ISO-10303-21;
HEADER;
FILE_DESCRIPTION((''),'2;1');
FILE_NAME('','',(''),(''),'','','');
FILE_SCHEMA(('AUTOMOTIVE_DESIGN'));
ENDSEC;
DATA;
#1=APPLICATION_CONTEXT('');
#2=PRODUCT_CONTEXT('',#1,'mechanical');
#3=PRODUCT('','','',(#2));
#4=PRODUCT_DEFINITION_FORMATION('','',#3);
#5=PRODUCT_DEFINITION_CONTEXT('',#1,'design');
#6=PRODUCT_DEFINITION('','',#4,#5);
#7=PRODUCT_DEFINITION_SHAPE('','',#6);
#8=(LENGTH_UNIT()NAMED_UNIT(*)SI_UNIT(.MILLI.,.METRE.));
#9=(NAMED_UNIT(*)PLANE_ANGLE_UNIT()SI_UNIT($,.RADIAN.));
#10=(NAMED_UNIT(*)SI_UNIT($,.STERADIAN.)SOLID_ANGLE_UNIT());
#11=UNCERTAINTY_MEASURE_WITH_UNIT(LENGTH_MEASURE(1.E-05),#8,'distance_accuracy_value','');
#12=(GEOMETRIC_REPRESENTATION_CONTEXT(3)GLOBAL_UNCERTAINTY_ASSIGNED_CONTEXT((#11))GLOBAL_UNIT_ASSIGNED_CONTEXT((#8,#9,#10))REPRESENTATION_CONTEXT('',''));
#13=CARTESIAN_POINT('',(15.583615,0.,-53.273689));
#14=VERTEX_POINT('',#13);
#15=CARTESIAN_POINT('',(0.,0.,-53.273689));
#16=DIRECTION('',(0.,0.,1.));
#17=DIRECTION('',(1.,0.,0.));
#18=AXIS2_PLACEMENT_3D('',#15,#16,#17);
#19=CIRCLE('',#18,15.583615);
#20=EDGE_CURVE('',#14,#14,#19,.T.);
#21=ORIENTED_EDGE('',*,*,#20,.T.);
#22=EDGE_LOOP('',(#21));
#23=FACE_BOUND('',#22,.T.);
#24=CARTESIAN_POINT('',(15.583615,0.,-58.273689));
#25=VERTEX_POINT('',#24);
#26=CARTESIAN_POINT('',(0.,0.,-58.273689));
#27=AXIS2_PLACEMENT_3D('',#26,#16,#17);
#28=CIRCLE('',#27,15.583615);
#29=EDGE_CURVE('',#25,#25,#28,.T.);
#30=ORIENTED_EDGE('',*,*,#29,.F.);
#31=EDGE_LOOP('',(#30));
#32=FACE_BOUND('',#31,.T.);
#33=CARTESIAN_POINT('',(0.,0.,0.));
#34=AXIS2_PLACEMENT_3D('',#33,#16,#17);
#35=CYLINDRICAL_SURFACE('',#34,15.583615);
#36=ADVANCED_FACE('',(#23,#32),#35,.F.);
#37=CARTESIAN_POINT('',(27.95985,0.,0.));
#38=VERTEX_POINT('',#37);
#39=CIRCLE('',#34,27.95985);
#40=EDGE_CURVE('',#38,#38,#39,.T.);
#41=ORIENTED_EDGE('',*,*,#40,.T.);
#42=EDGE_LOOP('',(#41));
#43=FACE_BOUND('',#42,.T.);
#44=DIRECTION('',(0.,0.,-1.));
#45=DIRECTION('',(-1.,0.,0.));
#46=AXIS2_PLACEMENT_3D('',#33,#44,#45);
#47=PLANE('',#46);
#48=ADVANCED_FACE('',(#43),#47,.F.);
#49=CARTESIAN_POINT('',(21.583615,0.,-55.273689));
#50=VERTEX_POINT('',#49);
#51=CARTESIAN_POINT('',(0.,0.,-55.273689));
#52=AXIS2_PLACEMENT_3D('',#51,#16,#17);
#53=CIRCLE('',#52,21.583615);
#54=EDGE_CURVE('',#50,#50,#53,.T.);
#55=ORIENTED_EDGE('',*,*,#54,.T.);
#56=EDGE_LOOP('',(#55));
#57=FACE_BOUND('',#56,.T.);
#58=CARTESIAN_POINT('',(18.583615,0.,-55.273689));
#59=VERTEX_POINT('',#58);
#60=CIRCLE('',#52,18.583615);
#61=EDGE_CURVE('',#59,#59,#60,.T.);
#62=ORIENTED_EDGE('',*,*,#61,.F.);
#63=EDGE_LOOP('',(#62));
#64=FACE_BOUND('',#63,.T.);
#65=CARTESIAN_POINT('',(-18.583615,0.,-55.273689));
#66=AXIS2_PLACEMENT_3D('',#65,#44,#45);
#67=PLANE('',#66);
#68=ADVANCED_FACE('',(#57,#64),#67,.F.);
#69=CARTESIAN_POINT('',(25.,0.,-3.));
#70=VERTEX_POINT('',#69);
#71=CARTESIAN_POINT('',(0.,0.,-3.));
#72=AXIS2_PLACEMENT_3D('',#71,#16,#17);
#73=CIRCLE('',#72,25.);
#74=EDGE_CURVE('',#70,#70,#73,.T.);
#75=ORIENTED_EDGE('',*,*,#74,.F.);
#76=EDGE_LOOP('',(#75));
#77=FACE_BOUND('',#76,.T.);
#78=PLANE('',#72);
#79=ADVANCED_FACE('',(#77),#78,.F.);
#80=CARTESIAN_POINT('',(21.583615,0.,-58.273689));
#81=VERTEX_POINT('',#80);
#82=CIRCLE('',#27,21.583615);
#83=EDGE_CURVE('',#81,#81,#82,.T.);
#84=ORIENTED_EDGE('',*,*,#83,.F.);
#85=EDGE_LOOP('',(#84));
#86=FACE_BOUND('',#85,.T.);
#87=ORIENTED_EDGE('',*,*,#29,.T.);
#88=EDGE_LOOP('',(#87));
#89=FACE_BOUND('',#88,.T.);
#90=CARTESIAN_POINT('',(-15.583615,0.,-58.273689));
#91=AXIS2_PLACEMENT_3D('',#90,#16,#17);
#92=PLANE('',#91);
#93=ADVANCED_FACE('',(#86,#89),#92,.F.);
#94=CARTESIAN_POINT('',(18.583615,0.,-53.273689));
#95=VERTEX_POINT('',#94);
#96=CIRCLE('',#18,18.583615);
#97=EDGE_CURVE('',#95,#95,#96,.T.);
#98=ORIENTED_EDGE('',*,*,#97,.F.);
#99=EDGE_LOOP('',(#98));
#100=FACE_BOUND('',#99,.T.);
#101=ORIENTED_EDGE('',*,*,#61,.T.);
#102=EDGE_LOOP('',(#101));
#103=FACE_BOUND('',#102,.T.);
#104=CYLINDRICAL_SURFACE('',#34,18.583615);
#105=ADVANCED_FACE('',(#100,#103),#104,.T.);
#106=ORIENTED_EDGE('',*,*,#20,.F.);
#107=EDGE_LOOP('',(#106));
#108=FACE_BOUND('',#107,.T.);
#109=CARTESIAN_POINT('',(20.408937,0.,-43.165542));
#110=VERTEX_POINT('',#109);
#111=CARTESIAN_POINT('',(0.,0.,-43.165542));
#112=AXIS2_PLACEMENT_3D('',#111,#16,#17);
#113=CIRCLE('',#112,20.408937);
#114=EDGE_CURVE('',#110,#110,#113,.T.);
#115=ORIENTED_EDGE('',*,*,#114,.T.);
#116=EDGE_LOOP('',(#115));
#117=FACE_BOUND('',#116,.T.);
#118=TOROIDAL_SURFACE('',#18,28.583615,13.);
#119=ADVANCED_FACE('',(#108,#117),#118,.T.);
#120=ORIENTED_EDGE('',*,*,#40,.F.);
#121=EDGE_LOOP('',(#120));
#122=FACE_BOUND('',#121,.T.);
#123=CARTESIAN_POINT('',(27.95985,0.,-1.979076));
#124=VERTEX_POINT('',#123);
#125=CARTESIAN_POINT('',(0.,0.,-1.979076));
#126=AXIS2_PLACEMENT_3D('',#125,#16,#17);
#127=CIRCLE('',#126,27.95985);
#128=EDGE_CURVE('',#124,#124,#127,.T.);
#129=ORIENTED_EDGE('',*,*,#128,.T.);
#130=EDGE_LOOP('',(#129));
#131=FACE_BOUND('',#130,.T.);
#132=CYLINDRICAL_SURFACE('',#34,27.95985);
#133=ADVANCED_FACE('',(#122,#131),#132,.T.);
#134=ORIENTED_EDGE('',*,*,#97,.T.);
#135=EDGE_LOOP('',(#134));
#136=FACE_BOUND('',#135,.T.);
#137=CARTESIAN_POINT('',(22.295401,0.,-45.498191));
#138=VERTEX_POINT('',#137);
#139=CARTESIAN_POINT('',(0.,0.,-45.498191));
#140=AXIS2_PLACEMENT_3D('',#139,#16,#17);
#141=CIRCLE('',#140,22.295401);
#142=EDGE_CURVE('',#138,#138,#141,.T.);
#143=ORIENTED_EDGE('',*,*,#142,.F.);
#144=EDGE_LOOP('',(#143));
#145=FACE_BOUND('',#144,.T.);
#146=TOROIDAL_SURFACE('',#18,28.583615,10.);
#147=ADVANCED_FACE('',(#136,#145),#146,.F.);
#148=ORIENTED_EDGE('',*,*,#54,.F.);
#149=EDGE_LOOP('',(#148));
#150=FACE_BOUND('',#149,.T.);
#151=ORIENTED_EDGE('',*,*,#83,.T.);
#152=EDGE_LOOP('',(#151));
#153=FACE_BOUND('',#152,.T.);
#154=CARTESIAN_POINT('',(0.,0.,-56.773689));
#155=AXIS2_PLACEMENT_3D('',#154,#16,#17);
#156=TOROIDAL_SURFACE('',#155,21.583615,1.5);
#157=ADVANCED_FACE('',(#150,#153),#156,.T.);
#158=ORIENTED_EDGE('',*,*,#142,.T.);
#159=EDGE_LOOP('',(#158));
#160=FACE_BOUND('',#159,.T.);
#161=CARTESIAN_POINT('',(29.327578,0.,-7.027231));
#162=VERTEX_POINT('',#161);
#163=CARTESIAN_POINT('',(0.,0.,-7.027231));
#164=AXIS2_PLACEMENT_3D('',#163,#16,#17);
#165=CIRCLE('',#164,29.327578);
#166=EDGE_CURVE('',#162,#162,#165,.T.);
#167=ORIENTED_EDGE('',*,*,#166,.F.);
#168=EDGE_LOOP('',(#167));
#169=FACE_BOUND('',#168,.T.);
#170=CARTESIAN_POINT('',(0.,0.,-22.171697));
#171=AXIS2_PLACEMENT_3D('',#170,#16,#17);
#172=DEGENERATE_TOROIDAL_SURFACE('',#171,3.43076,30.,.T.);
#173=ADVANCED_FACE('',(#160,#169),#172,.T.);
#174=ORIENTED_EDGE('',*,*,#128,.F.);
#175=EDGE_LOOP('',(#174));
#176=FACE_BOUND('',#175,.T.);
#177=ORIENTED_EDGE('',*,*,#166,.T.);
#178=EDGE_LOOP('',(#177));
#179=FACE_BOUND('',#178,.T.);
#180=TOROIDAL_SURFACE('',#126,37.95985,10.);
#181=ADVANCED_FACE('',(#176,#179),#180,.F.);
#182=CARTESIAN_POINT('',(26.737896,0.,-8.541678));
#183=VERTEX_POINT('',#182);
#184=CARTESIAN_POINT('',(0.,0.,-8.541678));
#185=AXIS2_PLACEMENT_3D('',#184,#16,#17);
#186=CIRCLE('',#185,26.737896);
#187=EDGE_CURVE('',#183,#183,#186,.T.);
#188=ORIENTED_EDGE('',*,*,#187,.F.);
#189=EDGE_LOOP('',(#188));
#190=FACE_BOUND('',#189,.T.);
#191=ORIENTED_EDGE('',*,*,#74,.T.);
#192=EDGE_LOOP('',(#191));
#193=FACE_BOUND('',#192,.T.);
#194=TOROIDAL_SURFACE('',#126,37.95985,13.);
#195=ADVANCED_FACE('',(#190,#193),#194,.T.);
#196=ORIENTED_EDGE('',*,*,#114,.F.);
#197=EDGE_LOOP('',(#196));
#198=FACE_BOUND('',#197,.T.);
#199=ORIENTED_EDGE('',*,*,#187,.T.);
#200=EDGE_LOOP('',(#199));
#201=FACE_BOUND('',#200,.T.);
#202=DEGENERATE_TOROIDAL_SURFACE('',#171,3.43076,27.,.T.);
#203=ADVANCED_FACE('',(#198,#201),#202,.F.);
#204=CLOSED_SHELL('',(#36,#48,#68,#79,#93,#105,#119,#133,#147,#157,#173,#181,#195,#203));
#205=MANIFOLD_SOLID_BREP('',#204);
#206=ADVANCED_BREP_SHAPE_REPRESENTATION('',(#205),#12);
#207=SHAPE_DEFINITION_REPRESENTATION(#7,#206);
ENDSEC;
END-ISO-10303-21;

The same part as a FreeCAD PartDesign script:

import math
import FreeCAD as App
import Part
import Sketcher
from FreeCAD import Vector
Q = App.Units.Quantity

doc = App.newDocument("Part")
body = doc.addObject("PartDesign::Body", "Body")

# Sketch on XZ plane
sketch1 = body.newObject("Sketcher::SketchObject", "Sketch")
sketch1.AttachmentSupport = (doc.getObject("XZ_Plane"), [""])
sketch1.MapMode = "FlatFace"
sketch1.addGeometry([
    Part.LineSegment(Vector(-28, 0, 0), Vector(0, 0, 0)),  # 0
    Part.LineSegment(Vector(0, 0, 0), Vector(0, -3, 0)),  # 1
    Part.LineSegment(Vector(0, -3, 0), Vector(-25, -3, 0)),  # 2
    Part.ArcOfCircle(Part.Circle(Vector(-38, -2, 0), Vector(0, 0, 1), 13), math.radians(-30), math.radians(-5)),  # 3
    Part.ArcOfCircle(Part.Circle(Vector(-3.4, -22.2, 0), Vector(0, 0, 1), 27), math.radians(150), math.radians(231)),  # 4
    Part.ArcOfCircle(Part.Circle(Vector(-28.6, -53.3, 0), Vector(0, 0, 1), 13), math.radians(0), math.radians(51)),  # 5
    Part.LineSegment(Vector(-15.6, -53.3, 0), Vector(-15.6, -58.3, 0)),  # 6
    Part.LineSegment(Vector(-15.6, -58.3, 0), Vector(-21.6, -58.3, 0)),  # 7
    Part.ArcOfCircle(Part.Circle(Vector(-21.6, -56.8, 0), Vector(0, 0, 1), 1.5), math.radians(90), math.radians(270)),  # 8
    Part.LineSegment(Vector(-21.6, -55.3, 0), Vector(-18.6, -55.3, 0)),  # 9
    Part.LineSegment(Vector(-18.6, -55.3, 0), Vector(-18.6, -53.3, 0)),  # 10
    Part.ArcOfCircle(Part.Circle(Vector(-28.6, -53.3, 0), Vector(0, 0, 1), 10), math.radians(0), math.radians(51)),  # 11
    Part.ArcOfCircle(Part.Circle(Vector(-3.4, -22.2, 0), Vector(0, 0, 1), 30), math.radians(150), math.radians(231)),  # 12
    Part.ArcOfCircle(Part.Circle(Vector(-38, -2, 0), Vector(0, 0, 1), 10), math.radians(-30), math.radians(0)),  # 13
    Part.LineSegment(Vector(-28, -2, 0), Vector(-28, 0, 0)),  # 14
], False)
sketch1.addConstraint([
    Sketcher.Constraint("Coincident", 0, 2, 1, 1),
    Sketcher.Constraint("Coincident", 1, 2, 2, 1),
    Sketcher.Constraint("Coincident", 2, 2, 3, 2),
    Sketcher.Constraint("Tangent", 3, 1, 4, 1),
    Sketcher.Constraint("Tangent", 4, 2, 5, 2),
    Sketcher.Constraint("Tangent", 5, 1, 6, 1),
    Sketcher.Constraint("Coincident", 6, 2, 7, 1),
    Sketcher.Constraint("Tangent", 7, 2, 8, 2),
    Sketcher.Constraint("Tangent", 8, 1, 9, 1),
    Sketcher.Constraint("Coincident", 9, 2, 10, 1),
    Sketcher.Constraint("Tangent", 10, 2, 11, 1),
    Sketcher.Constraint("Tangent", 11, 2, 12, 2),
    Sketcher.Constraint("Tangent", 12, 1, 13, 1),
    Sketcher.Constraint("Tangent", 13, 2, 14, 1),
    Sketcher.Constraint("Coincident", 14, 2, 0, 1),
    Sketcher.Constraint("Horizontal", 0),
    Sketcher.Constraint("Vertical", 1),
    Sketcher.Constraint("Horizontal", 2),
    Sketcher.Constraint("Vertical", 6),
    Sketcher.Constraint("Horizontal", 7),
    Sketcher.Constraint("Horizontal", 9),
    Sketcher.Constraint("Vertical", 10),
    Sketcher.Constraint("Vertical", 14),
    Sketcher.Constraint("Coincident", 0, 2, -1, 1),
    Sketcher.Constraint("Coincident", 11, 3, 5, 3),
    Sketcher.Constraint("Coincident", 12, 3, 4, 3),
    Sketcher.Constraint("Coincident", 13, 3, 3, 3),
    Sketcher.Constraint("Equal", 3, 5),
    Sketcher.Constraint("Equal", 9, 1),
    Sketcher.Constraint("Radius", 3, Q("13 mm")),
    Sketcher.Constraint("Radius", 4, Q("27 mm")),
    Sketcher.Constraint("Radius", 11, Q("10 mm")),
    Sketcher.Constraint("Radius", 8, Q("1.5 mm")),
    Sketcher.Constraint("DistanceX", 2, 2, 2, 1, Q("25 mm")),
    Sketcher.Constraint("DistanceX", 7, 2, 7, 1, Q("6 mm")),
    Sketcher.Constraint("DistanceY", 6, 2, 6, 1, Q("5 mm")),
    Sketcher.Constraint("DistanceX", 0, 1, 0, 2, Q("27.95985 mm")),
    Sketcher.Constraint("DistanceX", 11, 2, -1, 1, Q("22.295401 mm")),
    Sketcher.Constraint("DistanceY", 3, 1, 3, 3, Q("6.562602 mm")),
])
revolution = body.newObject("PartDesign::Revolution", "Revolution")
revolution.Profile = sketch1
revolution.ReferenceAxis = (sketch1, ["V_Axis"])
revolution.Angle = 360

doc.recompute()
